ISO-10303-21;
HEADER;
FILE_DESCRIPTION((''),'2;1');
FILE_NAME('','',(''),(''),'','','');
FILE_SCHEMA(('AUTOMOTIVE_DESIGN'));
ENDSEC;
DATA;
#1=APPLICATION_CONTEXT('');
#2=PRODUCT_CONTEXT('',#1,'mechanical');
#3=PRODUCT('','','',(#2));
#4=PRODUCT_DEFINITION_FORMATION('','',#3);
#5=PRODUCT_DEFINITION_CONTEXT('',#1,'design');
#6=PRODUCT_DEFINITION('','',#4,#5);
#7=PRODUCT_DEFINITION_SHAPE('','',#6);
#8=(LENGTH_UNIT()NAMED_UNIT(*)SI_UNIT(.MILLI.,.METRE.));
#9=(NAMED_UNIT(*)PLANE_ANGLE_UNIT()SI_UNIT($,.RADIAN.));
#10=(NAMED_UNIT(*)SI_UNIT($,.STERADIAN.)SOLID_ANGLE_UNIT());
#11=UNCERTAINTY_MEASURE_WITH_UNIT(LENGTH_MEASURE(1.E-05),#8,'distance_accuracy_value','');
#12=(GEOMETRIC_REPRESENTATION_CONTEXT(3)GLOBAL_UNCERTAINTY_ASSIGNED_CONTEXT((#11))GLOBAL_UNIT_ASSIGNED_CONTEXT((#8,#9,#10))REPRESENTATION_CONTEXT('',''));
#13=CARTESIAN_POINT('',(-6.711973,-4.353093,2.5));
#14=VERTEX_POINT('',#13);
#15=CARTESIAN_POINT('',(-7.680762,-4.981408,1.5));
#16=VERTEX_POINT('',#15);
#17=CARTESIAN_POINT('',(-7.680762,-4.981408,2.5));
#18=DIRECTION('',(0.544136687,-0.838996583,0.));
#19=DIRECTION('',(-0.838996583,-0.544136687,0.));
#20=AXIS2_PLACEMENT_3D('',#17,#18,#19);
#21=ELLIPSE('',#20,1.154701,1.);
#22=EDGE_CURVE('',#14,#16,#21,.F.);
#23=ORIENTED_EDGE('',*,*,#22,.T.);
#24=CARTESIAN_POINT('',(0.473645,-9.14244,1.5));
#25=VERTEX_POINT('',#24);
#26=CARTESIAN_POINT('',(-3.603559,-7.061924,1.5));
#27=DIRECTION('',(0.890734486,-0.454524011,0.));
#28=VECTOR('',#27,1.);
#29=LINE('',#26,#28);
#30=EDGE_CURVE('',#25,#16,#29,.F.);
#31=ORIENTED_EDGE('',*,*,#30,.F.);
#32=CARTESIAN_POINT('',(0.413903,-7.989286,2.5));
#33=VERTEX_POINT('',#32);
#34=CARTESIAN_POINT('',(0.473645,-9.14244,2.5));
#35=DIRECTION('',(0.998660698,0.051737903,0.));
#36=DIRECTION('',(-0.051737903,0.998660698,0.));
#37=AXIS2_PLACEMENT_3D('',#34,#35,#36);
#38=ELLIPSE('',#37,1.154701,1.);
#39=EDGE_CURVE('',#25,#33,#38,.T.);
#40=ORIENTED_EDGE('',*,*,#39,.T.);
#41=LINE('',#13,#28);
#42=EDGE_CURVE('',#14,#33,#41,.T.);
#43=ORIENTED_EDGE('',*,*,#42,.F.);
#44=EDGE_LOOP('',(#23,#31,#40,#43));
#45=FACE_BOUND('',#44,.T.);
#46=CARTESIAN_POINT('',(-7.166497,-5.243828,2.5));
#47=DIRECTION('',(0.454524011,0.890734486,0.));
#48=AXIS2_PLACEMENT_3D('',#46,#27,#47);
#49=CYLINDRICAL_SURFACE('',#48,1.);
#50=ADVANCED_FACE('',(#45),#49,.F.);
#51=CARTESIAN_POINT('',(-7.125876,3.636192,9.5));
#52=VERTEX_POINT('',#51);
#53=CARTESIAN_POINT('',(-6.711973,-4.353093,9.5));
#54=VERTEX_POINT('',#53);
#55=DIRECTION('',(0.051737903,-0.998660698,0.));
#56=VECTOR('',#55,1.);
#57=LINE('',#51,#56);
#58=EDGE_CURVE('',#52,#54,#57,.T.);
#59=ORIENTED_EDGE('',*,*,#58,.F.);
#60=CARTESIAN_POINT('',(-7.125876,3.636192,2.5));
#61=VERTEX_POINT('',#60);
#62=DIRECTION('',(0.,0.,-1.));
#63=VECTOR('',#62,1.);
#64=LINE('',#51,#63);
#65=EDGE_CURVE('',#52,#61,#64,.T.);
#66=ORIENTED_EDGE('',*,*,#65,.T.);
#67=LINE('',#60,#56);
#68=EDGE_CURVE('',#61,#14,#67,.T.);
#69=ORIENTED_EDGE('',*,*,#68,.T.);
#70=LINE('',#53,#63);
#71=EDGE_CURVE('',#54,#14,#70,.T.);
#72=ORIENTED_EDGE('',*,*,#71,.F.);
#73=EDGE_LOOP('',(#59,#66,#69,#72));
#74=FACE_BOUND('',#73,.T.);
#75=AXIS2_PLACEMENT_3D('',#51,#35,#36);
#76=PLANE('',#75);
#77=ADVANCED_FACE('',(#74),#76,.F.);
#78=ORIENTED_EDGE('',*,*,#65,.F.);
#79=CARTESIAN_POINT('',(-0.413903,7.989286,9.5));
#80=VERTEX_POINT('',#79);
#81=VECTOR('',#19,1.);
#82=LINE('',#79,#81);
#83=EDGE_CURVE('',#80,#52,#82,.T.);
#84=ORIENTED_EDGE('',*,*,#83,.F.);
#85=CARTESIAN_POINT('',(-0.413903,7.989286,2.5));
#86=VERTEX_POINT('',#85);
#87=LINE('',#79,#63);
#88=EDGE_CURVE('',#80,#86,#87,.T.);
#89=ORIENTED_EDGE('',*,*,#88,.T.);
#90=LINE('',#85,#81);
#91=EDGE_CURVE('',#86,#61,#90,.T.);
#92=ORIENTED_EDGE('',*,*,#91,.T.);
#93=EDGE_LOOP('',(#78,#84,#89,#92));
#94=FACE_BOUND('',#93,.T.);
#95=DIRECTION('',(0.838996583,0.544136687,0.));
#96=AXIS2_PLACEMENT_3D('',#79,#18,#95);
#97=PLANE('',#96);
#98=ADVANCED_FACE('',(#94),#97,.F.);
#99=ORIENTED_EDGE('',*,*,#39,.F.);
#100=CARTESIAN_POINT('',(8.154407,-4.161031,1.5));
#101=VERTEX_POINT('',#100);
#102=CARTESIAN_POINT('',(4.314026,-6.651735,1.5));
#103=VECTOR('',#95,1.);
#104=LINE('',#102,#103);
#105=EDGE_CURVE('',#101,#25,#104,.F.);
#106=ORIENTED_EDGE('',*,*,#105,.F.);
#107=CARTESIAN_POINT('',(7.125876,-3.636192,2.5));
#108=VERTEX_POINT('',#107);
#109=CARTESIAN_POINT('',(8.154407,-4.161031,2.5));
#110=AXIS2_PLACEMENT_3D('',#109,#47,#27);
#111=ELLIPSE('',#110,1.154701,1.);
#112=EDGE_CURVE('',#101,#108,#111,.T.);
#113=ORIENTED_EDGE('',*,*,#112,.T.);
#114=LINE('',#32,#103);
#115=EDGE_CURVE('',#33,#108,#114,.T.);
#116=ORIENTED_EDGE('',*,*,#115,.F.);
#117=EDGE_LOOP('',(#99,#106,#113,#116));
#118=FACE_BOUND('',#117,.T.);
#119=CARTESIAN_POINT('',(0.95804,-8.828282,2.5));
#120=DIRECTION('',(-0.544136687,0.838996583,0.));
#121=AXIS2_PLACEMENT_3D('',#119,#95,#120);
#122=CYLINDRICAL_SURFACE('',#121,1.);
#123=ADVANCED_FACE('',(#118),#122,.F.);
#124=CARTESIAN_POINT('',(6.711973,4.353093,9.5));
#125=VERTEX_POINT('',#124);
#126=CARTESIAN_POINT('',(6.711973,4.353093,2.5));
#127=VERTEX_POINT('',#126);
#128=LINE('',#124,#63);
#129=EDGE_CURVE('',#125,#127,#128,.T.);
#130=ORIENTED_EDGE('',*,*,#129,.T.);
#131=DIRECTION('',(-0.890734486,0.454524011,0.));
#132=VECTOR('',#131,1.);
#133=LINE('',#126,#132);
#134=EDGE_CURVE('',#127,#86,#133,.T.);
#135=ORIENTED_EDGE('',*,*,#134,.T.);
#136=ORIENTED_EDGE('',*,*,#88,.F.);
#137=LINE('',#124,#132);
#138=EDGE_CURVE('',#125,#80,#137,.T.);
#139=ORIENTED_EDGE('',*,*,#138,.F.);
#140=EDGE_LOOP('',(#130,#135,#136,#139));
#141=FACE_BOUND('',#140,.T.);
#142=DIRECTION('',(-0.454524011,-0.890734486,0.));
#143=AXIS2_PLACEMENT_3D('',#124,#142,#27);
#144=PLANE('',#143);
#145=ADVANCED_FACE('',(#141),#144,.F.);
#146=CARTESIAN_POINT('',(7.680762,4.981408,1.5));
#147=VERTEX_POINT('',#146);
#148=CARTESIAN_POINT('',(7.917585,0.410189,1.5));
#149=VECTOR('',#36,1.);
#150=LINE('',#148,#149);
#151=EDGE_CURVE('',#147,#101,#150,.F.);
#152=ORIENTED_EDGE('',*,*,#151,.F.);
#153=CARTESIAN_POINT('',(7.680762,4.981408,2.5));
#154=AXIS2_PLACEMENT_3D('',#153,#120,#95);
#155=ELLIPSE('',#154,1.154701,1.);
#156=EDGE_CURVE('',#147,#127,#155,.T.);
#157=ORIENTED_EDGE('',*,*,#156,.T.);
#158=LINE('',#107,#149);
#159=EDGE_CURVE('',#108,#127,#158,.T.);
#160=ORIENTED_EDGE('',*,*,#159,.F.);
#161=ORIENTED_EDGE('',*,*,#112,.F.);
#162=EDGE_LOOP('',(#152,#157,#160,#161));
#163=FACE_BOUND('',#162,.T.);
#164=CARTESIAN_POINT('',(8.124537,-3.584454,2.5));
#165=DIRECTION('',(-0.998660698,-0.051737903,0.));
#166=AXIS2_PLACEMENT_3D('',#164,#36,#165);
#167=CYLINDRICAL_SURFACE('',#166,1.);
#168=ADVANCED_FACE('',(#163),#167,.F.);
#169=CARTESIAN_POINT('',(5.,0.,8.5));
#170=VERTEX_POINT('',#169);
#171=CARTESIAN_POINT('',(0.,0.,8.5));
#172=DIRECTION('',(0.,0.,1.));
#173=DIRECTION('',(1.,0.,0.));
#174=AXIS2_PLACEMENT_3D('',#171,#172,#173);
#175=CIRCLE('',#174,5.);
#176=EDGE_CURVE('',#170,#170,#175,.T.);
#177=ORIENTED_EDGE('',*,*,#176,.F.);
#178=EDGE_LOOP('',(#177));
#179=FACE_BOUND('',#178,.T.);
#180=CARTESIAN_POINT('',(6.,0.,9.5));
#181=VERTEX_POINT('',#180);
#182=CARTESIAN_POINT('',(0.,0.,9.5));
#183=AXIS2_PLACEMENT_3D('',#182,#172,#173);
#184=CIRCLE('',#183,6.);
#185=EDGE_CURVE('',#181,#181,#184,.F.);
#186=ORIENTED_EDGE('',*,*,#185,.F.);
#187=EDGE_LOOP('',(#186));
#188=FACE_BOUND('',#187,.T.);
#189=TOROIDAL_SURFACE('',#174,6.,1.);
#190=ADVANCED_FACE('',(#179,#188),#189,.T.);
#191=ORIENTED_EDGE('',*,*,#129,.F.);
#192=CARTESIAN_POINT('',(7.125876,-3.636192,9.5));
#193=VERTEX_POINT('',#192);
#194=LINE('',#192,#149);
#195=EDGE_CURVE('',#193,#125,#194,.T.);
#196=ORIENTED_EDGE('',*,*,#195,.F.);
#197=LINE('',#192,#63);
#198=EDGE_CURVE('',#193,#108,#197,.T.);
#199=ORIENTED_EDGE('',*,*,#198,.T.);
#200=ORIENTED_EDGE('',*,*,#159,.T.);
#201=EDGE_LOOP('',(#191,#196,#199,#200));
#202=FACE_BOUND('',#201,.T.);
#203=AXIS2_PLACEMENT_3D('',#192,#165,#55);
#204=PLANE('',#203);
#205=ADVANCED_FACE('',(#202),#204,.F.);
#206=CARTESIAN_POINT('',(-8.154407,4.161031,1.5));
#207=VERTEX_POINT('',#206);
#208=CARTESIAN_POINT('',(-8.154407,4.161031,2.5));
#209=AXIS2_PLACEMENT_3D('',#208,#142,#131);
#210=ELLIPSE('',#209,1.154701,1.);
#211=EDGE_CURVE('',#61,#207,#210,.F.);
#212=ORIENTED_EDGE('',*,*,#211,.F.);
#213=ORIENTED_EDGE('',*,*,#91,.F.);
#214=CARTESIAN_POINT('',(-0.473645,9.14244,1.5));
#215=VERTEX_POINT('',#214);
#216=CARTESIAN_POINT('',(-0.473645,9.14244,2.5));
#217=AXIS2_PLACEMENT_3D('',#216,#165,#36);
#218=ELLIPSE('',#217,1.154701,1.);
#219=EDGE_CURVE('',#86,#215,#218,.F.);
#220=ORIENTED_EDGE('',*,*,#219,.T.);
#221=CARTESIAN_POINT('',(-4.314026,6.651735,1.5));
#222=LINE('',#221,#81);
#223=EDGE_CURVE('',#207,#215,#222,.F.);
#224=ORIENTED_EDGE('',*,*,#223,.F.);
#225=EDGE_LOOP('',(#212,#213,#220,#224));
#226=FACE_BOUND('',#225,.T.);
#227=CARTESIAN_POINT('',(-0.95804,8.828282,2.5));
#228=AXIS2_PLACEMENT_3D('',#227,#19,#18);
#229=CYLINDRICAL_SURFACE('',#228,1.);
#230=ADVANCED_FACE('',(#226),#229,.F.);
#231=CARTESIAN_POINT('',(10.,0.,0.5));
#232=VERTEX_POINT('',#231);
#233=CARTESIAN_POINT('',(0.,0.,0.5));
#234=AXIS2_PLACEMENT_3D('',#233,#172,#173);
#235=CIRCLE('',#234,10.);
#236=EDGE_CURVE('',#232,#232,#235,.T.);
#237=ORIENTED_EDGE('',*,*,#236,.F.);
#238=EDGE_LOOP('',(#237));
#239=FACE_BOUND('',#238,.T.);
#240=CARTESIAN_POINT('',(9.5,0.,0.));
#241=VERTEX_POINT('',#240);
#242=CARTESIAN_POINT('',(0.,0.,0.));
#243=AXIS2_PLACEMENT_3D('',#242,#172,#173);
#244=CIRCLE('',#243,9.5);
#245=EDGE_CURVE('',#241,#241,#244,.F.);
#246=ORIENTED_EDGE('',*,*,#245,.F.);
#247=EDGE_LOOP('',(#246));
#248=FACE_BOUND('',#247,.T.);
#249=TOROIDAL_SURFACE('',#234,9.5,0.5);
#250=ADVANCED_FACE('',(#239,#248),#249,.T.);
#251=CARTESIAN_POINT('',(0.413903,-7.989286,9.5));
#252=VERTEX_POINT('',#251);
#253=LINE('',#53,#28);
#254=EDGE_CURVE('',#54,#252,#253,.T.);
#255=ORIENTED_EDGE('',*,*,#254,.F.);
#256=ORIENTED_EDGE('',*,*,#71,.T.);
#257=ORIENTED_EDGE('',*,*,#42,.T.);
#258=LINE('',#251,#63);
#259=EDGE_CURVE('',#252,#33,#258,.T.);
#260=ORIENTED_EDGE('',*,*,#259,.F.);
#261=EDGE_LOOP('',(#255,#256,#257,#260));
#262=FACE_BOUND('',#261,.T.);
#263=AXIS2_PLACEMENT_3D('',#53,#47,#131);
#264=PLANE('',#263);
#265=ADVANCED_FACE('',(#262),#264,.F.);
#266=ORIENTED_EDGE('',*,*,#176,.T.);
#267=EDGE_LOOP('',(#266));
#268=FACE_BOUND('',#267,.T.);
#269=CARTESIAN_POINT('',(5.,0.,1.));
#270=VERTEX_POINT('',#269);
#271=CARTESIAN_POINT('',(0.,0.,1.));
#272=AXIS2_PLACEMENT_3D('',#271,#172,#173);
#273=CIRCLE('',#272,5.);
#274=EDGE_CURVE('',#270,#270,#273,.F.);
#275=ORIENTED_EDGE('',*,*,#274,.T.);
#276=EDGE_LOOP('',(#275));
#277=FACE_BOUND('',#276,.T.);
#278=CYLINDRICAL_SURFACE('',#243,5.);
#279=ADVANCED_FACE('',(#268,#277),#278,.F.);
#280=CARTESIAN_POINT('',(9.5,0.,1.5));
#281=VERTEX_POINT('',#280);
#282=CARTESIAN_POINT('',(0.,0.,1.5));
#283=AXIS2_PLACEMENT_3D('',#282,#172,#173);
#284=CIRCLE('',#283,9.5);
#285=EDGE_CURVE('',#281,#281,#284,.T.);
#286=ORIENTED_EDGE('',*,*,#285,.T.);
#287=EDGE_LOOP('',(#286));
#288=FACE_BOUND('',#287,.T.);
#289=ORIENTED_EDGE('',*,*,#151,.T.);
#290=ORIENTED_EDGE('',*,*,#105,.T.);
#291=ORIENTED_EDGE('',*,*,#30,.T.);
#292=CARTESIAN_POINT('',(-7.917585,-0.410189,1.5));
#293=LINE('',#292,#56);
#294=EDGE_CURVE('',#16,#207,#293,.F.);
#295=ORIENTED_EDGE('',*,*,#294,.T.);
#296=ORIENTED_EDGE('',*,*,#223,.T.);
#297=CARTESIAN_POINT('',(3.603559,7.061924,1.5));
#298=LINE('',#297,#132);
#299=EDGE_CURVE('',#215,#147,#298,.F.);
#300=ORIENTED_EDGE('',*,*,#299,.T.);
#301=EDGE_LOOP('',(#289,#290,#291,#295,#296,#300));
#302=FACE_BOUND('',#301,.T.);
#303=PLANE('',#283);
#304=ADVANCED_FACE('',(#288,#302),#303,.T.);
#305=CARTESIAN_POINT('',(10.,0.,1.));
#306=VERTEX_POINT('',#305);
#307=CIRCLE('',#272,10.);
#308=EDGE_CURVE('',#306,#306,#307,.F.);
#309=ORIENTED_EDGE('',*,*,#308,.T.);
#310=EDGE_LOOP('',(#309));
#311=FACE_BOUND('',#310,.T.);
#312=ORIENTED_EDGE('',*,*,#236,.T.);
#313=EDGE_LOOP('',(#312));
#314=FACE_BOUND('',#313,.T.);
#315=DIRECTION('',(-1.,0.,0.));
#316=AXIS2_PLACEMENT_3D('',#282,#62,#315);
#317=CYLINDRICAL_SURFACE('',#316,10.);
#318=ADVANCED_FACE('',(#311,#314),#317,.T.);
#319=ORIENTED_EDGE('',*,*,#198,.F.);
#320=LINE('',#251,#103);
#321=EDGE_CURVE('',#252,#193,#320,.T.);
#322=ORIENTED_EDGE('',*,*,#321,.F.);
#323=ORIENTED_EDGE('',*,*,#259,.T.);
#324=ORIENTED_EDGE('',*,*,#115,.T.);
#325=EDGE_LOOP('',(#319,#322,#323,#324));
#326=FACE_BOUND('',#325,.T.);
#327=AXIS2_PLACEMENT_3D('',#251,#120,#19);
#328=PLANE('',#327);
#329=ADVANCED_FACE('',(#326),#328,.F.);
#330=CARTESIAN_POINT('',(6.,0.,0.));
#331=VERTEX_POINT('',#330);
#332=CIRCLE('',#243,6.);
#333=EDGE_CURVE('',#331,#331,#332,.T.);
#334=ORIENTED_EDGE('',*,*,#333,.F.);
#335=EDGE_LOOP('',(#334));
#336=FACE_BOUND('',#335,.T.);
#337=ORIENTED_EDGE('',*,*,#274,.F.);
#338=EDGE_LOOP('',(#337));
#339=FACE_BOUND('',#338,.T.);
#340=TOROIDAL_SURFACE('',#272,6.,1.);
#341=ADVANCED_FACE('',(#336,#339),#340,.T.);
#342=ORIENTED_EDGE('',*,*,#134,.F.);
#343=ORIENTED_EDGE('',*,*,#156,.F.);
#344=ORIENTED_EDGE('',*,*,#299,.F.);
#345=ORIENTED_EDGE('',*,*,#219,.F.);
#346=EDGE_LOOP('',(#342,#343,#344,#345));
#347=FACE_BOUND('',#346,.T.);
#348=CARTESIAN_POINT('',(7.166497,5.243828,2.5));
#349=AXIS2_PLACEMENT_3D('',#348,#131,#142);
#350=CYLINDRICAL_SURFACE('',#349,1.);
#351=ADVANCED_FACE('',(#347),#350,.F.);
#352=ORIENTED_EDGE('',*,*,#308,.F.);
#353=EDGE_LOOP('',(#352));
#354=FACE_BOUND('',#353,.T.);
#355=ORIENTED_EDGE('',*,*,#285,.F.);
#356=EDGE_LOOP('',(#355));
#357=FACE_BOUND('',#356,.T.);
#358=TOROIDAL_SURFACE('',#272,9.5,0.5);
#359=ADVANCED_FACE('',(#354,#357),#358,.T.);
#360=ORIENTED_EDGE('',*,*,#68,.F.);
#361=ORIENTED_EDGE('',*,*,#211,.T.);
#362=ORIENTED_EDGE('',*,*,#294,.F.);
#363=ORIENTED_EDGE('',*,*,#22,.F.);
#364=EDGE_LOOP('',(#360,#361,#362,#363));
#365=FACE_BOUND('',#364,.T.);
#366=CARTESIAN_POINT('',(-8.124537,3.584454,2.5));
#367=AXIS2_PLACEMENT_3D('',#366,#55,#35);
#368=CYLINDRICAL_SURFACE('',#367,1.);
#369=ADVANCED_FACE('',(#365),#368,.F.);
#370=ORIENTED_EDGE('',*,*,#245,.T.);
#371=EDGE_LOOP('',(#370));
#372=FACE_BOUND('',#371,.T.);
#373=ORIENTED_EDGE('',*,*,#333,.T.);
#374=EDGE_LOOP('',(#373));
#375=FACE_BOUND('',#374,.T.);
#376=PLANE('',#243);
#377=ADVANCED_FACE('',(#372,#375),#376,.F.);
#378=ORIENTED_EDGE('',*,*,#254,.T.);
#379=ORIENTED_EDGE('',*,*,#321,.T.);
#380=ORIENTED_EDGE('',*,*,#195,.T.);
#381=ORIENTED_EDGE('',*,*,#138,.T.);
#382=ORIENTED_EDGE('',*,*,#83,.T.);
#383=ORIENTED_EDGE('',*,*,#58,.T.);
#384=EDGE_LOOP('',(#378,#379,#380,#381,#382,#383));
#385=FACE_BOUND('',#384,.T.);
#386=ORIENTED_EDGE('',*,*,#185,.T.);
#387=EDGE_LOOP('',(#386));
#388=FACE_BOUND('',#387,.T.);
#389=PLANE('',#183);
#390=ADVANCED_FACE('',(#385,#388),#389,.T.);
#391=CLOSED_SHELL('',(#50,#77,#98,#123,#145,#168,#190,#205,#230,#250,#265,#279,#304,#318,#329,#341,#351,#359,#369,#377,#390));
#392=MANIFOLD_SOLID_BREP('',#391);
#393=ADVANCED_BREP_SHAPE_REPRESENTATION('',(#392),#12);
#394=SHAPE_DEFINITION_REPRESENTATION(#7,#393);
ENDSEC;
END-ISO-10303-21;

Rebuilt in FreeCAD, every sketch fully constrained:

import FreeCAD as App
import Part
import Sketcher
Q = App.Units.Quantity


def edges_at(feature, points):
    """Names of the edges that pass closest to the given points."""
    edges = feature.Shape.Edges
    near = lambda p: min(range(len(edges)), key=lambda i: edges[i].distToShape(Part.Vertex(*p))[0])
    return sorted({f"Edge{near(p) + 1}" for p in points})

doc = App.newDocument("Part")
body = doc.addObject("PartDesign::Body", "Body")

sketch1 = body.newObject("Sketcher::SketchObject", "Sketch")
sketch1.AttachmentSupport = (doc.getObject("XY_Plane"), [""])
sketch1.MapMode = "FlatFace"
sketch1.addGeometry(Part.Circle(App.Vector(0, 0, 0), App.Vector(0, 0, 1), 10), False)
sketch1.addConstraint([
    Sketcher.Constraint("Coincident", 0, 3, -1, 1),
    Sketcher.Constraint("Diameter", 0, Q("20 mm")),
])
pad1 = body.newObject("PartDesign::Pad", "Pad")
pad1.Profile = sketch1
pad1.Length = 1.5
doc.recompute()

fillet = body.newObject("PartDesign::Fillet", "Fillet")
fillet.Base = (pad1, edges_at(pad1, [(-10, 0, 0), (-10, 0, 1.5)]))
fillet.Radius = 0.5

sketch2 = body.newObject("Sketcher::SketchObject", "Sketch001")
sketch2.AttachmentSupport = (doc.getObject("XY_Plane"), [""])
sketch2.MapMode = "FlatFace"
sketch2.AttachmentOffset = App.Placement(App.Vector(0, 0, 1.5), App.Rotation())
sketch2.addGeometry([
    Part.LineSegment(App.Vector(-7, 4, 0), App.Vector(-7, -4, 0)),
    Part.LineSegment(App.Vector(-7, -4, 0), App.Vector(0, -8, 0)),
    Part.LineSegment(App.Vector(0, -8, 0), App.Vector(7, -4, 0)),
    Part.LineSegment(App.Vector(7, -4, 0), App.Vector(7, 4, 0)),
    Part.LineSegment(App.Vector(7, 4, 0), App.Vector(0, 8, 0)),
    Part.LineSegment(App.Vector(0, 8, 0), App.Vector(-7, 4, 0)),
], False)
sketch2.addConstraint([
    Sketcher.Constraint("Coincident", 0, 2, 1, 1),
    Sketcher.Constraint("Coincident", 1, 2, 2, 1),
    Sketcher.Constraint("Coincident", 2, 2, 3, 1),
    Sketcher.Constraint("Coincident", 3, 2, 4, 1),
    Sketcher.Constraint("Coincident", 4, 2, 5, 1),
    Sketcher.Constraint("Coincident", 5, 2, 0, 1),
    Sketcher.Constraint("Symmetric", 0, 2, 3, 2, -1, 1),
    Sketcher.Constraint("Symmetric", 1, 2, 4, 2, -1, 1),
    Sketcher.Constraint("Symmetric", 2, 2, 5, 2, -1, 1),
    Sketcher.Constraint("Equal", 0, 1),
    Sketcher.Constraint("Equal", 1, 2),
    Sketcher.Constraint("Distance", 0, Q("8 mm")),
    Sketcher.Constraint("DistanceY", 0, 2, 2, 2, Q("0.716901 mm")),
    Sketcher.Constraint("DistanceX", 0, 2, 2, 2, Q("13.837849 mm")),
    Sketcher.Constraint("DistanceX", 1, 2, 3, 2, Q("6.298069 mm")),
])
pad2 = body.newObject("PartDesign::Pad", "Pad001")
pad2.Profile = sketch2
pad2.Length = 8
doc.recompute()

fillet2 = body.newObject("PartDesign::Fillet", "Fillet001")
fillet2.Base = (pad2, edges_at(pad2, [
    (-3.77, 5.813, 1.5),
    (-6.919, -0.358, 1.5),
    (-3.149, -6.171, 1.5),
    (3.77, -5.813, 1.5),
    (6.919, 0.358, 1.5),
    (3.149, 6.171, 1.5),
]))
fillet2.Radius = 1

sketch3 = body.newObject("Sketcher::SketchObject", "Sketch002")
sketch3.AttachmentSupport = (doc.getObject("XY_Plane"), [""])
sketch3.MapMode = "FlatFace"
sketch3.AttachmentOffset = App.Placement(App.Vector(0, 0, 9.5), App.Rotation())
sketch3.addGeometry(Part.Circle(App.Vector(0, 0, 0), App.Vector(0, 0, 1), 5), False)
sketch3.addConstraint([
    Sketcher.Constraint("Coincident", 0, 3, -1, 1),
    Sketcher.Constraint("Diameter", 0, Q("10 mm")),
])
pocket1 = body.newObject("PartDesign::Pocket", "Pocket")
pocket1.Profile = sketch3
pocket1.Type = "ThroughAll"
doc.recompute()

fillet3 = body.newObject("PartDesign::Fillet", "Fillet002")
fillet3.Base = (pocket1, edges_at(pocket1, [(-5, 0, 0), (-5, 0, 9.5)]))
fillet3.Radius = 1

doc.recompute()
